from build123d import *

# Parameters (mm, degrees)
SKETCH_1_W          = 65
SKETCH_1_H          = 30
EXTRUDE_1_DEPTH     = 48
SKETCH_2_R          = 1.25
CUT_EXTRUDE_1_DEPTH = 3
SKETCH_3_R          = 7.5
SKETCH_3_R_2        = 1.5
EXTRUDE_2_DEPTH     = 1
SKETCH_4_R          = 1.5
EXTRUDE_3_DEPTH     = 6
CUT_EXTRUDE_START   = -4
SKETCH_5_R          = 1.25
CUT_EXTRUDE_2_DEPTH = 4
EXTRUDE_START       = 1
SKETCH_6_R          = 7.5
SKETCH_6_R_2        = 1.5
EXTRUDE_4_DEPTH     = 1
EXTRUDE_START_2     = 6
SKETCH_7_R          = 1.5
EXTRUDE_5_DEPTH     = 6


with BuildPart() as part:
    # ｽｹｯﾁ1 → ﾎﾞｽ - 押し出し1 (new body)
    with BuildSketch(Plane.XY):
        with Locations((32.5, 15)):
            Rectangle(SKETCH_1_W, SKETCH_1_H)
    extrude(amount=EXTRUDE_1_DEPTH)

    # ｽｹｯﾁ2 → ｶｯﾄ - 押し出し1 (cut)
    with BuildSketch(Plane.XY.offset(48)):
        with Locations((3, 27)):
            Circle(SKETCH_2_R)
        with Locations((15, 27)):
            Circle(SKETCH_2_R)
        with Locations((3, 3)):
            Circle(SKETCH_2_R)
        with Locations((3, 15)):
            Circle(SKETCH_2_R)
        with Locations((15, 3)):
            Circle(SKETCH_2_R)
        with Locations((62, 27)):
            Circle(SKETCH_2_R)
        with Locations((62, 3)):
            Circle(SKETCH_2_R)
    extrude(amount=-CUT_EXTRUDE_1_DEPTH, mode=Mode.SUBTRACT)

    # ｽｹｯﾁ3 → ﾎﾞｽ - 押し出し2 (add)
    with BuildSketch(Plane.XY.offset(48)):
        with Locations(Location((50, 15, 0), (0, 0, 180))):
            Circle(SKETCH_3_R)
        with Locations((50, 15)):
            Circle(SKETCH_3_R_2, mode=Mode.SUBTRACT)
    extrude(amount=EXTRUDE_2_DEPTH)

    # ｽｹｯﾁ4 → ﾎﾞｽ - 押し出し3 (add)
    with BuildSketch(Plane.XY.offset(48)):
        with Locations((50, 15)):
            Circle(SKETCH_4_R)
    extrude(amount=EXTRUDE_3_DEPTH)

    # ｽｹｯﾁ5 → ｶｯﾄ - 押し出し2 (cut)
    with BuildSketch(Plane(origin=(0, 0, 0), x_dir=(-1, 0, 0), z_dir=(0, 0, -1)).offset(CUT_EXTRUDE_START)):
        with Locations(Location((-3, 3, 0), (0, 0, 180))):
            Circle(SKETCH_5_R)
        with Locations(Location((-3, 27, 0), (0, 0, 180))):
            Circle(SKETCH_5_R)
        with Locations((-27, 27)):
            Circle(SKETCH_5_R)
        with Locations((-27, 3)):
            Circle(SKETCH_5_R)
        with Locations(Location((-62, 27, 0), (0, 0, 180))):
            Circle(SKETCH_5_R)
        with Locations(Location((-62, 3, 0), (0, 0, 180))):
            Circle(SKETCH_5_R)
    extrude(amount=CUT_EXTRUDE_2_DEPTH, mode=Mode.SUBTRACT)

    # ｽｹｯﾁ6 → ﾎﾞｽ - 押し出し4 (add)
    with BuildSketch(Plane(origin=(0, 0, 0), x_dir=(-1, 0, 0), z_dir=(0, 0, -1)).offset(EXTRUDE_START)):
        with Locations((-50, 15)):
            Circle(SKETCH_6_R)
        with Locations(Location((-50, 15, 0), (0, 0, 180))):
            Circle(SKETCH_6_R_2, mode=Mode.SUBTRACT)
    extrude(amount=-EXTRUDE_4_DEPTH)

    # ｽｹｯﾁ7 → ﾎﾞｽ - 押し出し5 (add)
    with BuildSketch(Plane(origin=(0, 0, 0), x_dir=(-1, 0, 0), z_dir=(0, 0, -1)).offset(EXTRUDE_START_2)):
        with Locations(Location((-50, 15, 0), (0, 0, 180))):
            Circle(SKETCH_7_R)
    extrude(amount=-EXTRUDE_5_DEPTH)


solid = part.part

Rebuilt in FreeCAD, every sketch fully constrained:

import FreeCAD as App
import Part
import Sketcher
from FreeCAD import Vector
Q = App.Units.Quantity


def add_polygon(sketch, points):
    """Adds a closed chain of lines whose ends are joined by coincident constraints."""
    first, n = sketch.GeometryCount, len(points)
    for a, b in zip(points, points[1:] + points[:1]):
        sketch.addGeometry(Part.LineSegment(App.Vector(*a, 0), App.Vector(*b, 0)), False)
    for i in range(n):
        sketch.addConstraint(Sketcher.Constraint("Coincident", first + i, 2, first + (i + 1) % n, 1))

doc = App.newDocument("Part")
body = doc.addObject("PartDesign::Body", "Body")

sketch1 = body.newObject("Sketcher::SketchObject", "Sketch")
sketch1.AttachmentSupport = (doc.getObject("XY_Plane"), [""])
sketch1.MapMode = "FlatFace"
add_polygon(sketch1, [(0, 30), (0, 0), (65, 0), (65, 30)])
sketch1.addConstraint(Sketcher.Constraint("Vertical", 0))
sketch1.addConstraint(Sketcher.Constraint("Horizontal", 1))
sketch1.addConstraint(Sketcher.Constraint("Vertical", 2))
sketch1.addConstraint(Sketcher.Constraint("Horizontal", 3))
sketch1.addConstraint(Sketcher.Constraint("Coincident", 0, 2, -1, 1))
sketch1.addConstraint(Sketcher.Constraint("DistanceX", 1, 1, 1, 2, Q("65 mm")))
sketch1.addConstraint(Sketcher.Constraint("DistanceY", 0, 2, 0, 1, Q("30 mm")))
pad1 = body.newObject("PartDesign::Pad", "Pad")
pad1.Profile = sketch1
pad1.Length = 48

sketch2 = body.newObject("Sketcher::SketchObject", "Sketch001")
sketch2.AttachmentSupport = (doc.getObject("XY_Plane"), [""])
sketch2.MapMode = "FlatFace"
sketch2.AttachmentOffset = App.Placement(Vector(0, 0, 48), App.Rotation())
sketch2.addGeometry(Part.Circle(Vector(3, 27, 0), Vector(0, 0, 1), 1.2), False)
sketch2.addGeometry(Part.Circle(Vector(15, 27, 0), Vector(0, 0, 1), 1.2), False)
sketch2.addGeometry(Part.Circle(Vector(3, 3, 0), Vector(0, 0, 1), 1.2), False)
sketch2.addGeometry(Part.Circle(Vector(3, 15, 0), Vector(0, 0, 1), 1.2), False)
sketch2.addGeometry(Part.Circle(Vector(15, 3, 0), Vector(0, 0, 1), 1.2), False)
sketch2.addGeometry(Part.Circle(Vector(62, 27, 0), Vector(0, 0, 1), 1.2), False)
sketch2.addGeometry(Part.Circle(Vector(62, 3, 0), Vector(0, 0, 1), 1.2), False)
sketch2.addConstraint(Sketcher.Constraint("Equal", 0, 1))
sketch2.addConstraint(Sketcher.Constraint("Equal", 1, 2))
sketch2.addConstraint(Sketcher.Constraint("Equal", 2, 3))
sketch2.addConstraint(Sketcher.Constraint("Equal", 3, 4))
sketch2.addConstraint(Sketcher.Constraint("Equal", 4, 5))
sketch2.addConstraint(Sketcher.Constraint("Equal", 5, 6))
sketch2.addConstraint(Sketcher.Constraint("Horizontal", 0, 3, 1, 3))
sketch2.addConstraint(Sketcher.Constraint("Horizontal", 2, 3, 4, 3))
sketch2.addConstraint(Sketcher.Constraint("Horizontal", 1, 3, 5, 3))
sketch2.addConstraint(Sketcher.Constraint("Horizontal", 4, 3, 6, 3))
sketch2.addConstraint(Sketcher.Constraint("Vertical", 0, 3, 2, 3))
sketch2.addConstraint(Sketcher.Constraint("Vertical", 2, 3, 3, 3))
sketch2.addConstraint(Sketcher.Constraint("Vertical", 1, 3, 4, 3))
sketch2.addConstraint(Sketcher.Constraint("Vertical", 5, 3, 6, 3))
sketch2.addConstraint(Sketcher.Constraint("Diameter", 0, Q("2.5 mm")))
sketch2.addConstraint(Sketcher.Constraint("DistanceX", -1, 1, 0, 3, Q("3 mm")))
sketch2.addConstraint(Sketcher.Constraint("DistanceY", -1, 1, 0, 3, Q("27 mm")))
sketch2.addConstraint(Sketcher.Constraint("DistanceX", -1, 1, 1, 3, Q("15 mm")))
sketch2.addConstraint(Sketcher.Constraint("DistanceY", -1, 1, 2, 3, Q("3 mm")))
sketch2.addConstraint(Sketcher.Constraint("DistanceY", -1, 1, 3, 3, Q("15 mm")))
sketch2.addConstraint(Sketcher.Constraint("DistanceX", -1, 1, 5, 3, Q("62 mm")))
pocket1 = body.newObject("PartDesign::Pocket", "Pocket")
pocket1.Profile = sketch2
pocket1.Length = 3

sketch3 = body.newObject("Sketcher::SketchObject", "Sketch002")
sketch3.AttachmentSupport = (doc.getObject("XY_Plane"), [""])
sketch3.MapMode = "FlatFace"
sketch3.AttachmentOffset = App.Placement(Vector(0, 0, 48), App.Rotation())
sketch3.addGeometry(Part.Circle(Vector(50, 15, 0), Vector(0, 0, 1), 7.5), False)
sketch3.addGeometry(Part.Circle(Vector(50, 15, 0), Vector(0, 0, 1), 1.5), False)
sketch3.addConstraint(Sketcher.Constraint("Coincident", 1, 3, 0, 3))
sketch3.addConstraint(Sketcher.Constraint("Diameter", 0, Q("15 mm")))
sketch3.addConstraint(Sketcher.Constraint("Diameter", 1, Q("3 mm")))
sketch3.addConstraint(Sketcher.Constraint("DistanceX", -1, 1, 0, 3, Q("50 mm")))
sketch3.addConstraint(Sketcher.Constraint("DistanceY", -1, 1, 0, 3, Q("15 mm")))
pad2 = body.newObject("PartDesign::Pad", "Pad001")
pad2.Profile = sketch3
pad2.Length = 1

sketch4 = body.newObject("Sketcher::SketchObject", "Sketch003")
sketch4.AttachmentSupport = (doc.getObject("XY_Plane"), [""])
sketch4.MapMode = "FlatFace"
sketch4.AttachmentOffset = App.Placement(Vector(0, 0, 48), App.Rotation())
sketch4.addGeometry(Part.Circle(Vector(50, 15, 0), Vector(0, 0, 1), 1.5), False)
sketch4.addConstraint(Sketcher.Constraint("Diameter", 0, Q("3 mm")))
sketch4.addConstraint(Sketcher.Constraint("DistanceX", -1, 1, 0, 3, Q("50 mm")))
sketch4.addConstraint(Sketcher.Constraint("DistanceY", -1, 1, 0, 3, Q("15 mm")))
pad3 = body.newObject("PartDesign::Pad", "Pad002")
pad3.Profile = sketch4
pad3.Length = 6

sketch5 = body.newObject("Sketcher::SketchObject", "Sketch004")
sketch5.AttachmentSupport = (doc.getObject("XY_Plane"), [""])
sketch5.MapMode = "FlatFace"
sketch5.AttachmentOffset = App.Placement(Vector(0, 0, 4), App.Rotation())
sketch5.addGeometry(Part.Circle(Vector(3, 3, 0), Vector(0, 0, 1), 1.2), False)
sketch5.addGeometry(Part.Circle(Vector(3, 27, 0), Vector(0, 0, 1), 1.2), False)
sketch5.addGeometry(Part.Circle(Vector(27, 27, 0), Vector(0, 0, 1), 1.2), False)
sketch5.addGeometry(Part.Circle(Vector(27, 3, 0), Vector(0, 0, 1), 1.2), False)
sketch5.addGeometry(Part.Circle(Vector(62, 27, 0), Vector(0, 0, 1), 1.2), False)
sketch5.addGeometry(Part.Circle(Vector(62, 3, 0), Vector(0, 0, 1), 1.2), False)
sketch5.addConstraint(Sketcher.Constraint("Equal", 0, 1))
sketch5.addConstraint(Sketcher.Constraint("Equal", 1, 2))
sketch5.addConstraint(Sketcher.Constraint("Equal", 2, 3))
sketch5.addConstraint(Sketcher.Constraint("Equal", 3, 4))
sketch5.addConstraint(Sketcher.Constraint("Equal", 4, 5))
sketch5.addConstraint(Sketcher.Constraint("Horizontal", 1, 3, 2, 3))
sketch5.addConstraint(Sketcher.Constraint("Horizontal", 0, 3, 3, 3))
sketch5.addConstraint(Sketcher.Constraint("Horizontal", 2, 3, 4, 3))
sketch5.addConstraint(Sketcher.Constraint("Horizontal", 3, 3, 5, 3))
sketch5.addConstraint(Sketcher.Constraint("Vertical", 0, 3, 1, 3))
sketch5.addConstraint(Sketcher.Constraint("Vertical", 2, 3, 3, 3))
sketch5.addConstraint(Sketcher.Constraint("Vertical", 4, 3, 5, 3))
sketch5.addConstraint(Sketcher.Constraint("Diameter", 0, Q("2.5 mm")))
sketch5.addConstraint(Sketcher.Constraint("DistanceX", -1, 1, 0, 3, Q("3 mm")))
sketch5.addConstraint(Sketcher.Constraint("DistanceY", -1, 1, 0, 3, Q("3 mm")))
sketch5.addConstraint(Sketcher.Constraint("DistanceY", -1, 1, 1, 3, Q("27 mm")))
sketch5.addConstraint(Sketcher.Constraint("DistanceX", -1, 1, 2, 3, Q("27 mm")))
sketch5.addConstraint(Sketcher.Constraint("DistanceX", -1, 1, 4, 3, Q("62 mm")))
pocket2 = body.newObject("PartDesign::Pocket", "Pocket001")
pocket2.Profile = sketch5
pocket2.Length = 4

sketch6 = body.newObject("Sketcher::SketchObject", "Sketch005")
sketch6.AttachmentSupport = (doc.getObject("XY_Plane"), [""])
sketch6.MapMode = "FlatFace"
sketch6.AttachmentOffset = App.Placement(Vector(0, 0, -1), App.Rotation())
sketch6.addGeometry(Part.Circle(Vector(50, 15, 0), Vector(0, 0, 1), 7.5), False)
sketch6.addGeometry(Part.Circle(Vector(50, 15, 0), Vector(0, 0, 1), 1.5), False)
sketch6.addConstraint(Sketcher.Constraint("Coincident", 1, 3, 0, 3))
sketch6.addConstraint(Sketcher.Constraint("Diameter", 0, Q("15 mm")))
sketch6.addConstraint(Sketcher.Constraint("Diameter", 1, Q("3 mm")))
sketch6.addConstraint(Sketcher.Constraint("DistanceX", -1, 1, 0, 3, Q("50 mm")))
sketch6.addConstraint(Sketcher.Constraint("DistanceY", -1, 1, 0, 3, Q("15 mm")))
pad4 = body.newObject("PartDesign::Pad", "Pad003")
pad4.Profile = sketch6
pad4.Length = 1

sketch7 = body.newObject("Sketcher::SketchObject", "Sketch006")
sketch7.AttachmentSupport = (doc.getObject("XY_Plane"), [""])
sketch7.MapMode = "FlatFace"
sketch7.AttachmentOffset = App.Placement(Vector(0, 0, -6), App.Rotation())
sketch7.addGeometry(Part.Circle(Vector(50, 15, 0), Vector(0, 0, 1), 1.5), False)
sketch7.addConstraint(Sketcher.Constraint("Diameter", 0, Q("3 mm")))
sketch7.addConstraint(Sketcher.Constraint("DistanceX", -1, 1, 0, 3, Q("50 mm")))
sketch7.addConstraint(Sketcher.Constraint("DistanceY", -1, 1, 0, 3, Q("15 mm")))
pad5 = body.newObject("PartDesign::Pad", "Pad004")
pad5.Profile = sketch7
pad5.Length = 6

doc.recompute()
